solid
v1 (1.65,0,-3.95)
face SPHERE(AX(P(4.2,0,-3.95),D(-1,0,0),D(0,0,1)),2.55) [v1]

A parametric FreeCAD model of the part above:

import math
import FreeCAD as App
import Part
import Sketcher

V = App.Vector

doc = App.newDocument("Part")
body = doc.addObject("PartDesign::Body", "Body")

# Sketch on XZ plane
sketch1 = body.newObject("Sketcher::SketchObject", "Sketch")
sketch1.AttachmentSupport = (doc.getObject("XZ_Plane"), [""])
sketch1.MapMode = "FlatFace"
sketch1.addGeometry([
    Part.LineSegment(V(1.6, -4, 0), V(6.8, -4, 0)),
    Part.ArcOfCircle(Part.Circle(V(4.2, -4, 0), V(0, 0, 1), 2.5), math.radians(180), math.radians(360)),
], False)
sketch1.addGeometry(Part.LineSegment(V(1.6, -4, 0), V(6.8, -4, 0)), True)  # axis
sketch1.addConstraint([
    Sketcher.Constraint("Coincident", 0, 1, 1, 1),
    Sketcher.Constraint("Coincident", 1, 2, 0, 2),
    Sketcher.Constraint("Horizontal", 0),
    Sketcher.Constraint("Horizontal", 2),
    Sketcher.Constraint("Coincident", 2, 1, 0, 1),
    Sketcher.Constraint("Horizontal", 1, 3, 0, 1),
    Sketcher.Constraint("Equal", 0, 2),
    Sketcher.Constraint("Radius", 1, 2.55),
    Sketcher.Constraint("DistanceX", -1, 1, 1, 3, 4.2),
    Sketcher.Constraint("DistanceY", 1, 3, -1, 1, 3.95),
])
revolution = body.newObject("PartDesign::Revolution", "Revolution")
revolution.Profile = sketch1
revolution.ReferenceAxis = (sketch1, ["Axis0"])
revolution.Angle = 360

doc.recompute()
